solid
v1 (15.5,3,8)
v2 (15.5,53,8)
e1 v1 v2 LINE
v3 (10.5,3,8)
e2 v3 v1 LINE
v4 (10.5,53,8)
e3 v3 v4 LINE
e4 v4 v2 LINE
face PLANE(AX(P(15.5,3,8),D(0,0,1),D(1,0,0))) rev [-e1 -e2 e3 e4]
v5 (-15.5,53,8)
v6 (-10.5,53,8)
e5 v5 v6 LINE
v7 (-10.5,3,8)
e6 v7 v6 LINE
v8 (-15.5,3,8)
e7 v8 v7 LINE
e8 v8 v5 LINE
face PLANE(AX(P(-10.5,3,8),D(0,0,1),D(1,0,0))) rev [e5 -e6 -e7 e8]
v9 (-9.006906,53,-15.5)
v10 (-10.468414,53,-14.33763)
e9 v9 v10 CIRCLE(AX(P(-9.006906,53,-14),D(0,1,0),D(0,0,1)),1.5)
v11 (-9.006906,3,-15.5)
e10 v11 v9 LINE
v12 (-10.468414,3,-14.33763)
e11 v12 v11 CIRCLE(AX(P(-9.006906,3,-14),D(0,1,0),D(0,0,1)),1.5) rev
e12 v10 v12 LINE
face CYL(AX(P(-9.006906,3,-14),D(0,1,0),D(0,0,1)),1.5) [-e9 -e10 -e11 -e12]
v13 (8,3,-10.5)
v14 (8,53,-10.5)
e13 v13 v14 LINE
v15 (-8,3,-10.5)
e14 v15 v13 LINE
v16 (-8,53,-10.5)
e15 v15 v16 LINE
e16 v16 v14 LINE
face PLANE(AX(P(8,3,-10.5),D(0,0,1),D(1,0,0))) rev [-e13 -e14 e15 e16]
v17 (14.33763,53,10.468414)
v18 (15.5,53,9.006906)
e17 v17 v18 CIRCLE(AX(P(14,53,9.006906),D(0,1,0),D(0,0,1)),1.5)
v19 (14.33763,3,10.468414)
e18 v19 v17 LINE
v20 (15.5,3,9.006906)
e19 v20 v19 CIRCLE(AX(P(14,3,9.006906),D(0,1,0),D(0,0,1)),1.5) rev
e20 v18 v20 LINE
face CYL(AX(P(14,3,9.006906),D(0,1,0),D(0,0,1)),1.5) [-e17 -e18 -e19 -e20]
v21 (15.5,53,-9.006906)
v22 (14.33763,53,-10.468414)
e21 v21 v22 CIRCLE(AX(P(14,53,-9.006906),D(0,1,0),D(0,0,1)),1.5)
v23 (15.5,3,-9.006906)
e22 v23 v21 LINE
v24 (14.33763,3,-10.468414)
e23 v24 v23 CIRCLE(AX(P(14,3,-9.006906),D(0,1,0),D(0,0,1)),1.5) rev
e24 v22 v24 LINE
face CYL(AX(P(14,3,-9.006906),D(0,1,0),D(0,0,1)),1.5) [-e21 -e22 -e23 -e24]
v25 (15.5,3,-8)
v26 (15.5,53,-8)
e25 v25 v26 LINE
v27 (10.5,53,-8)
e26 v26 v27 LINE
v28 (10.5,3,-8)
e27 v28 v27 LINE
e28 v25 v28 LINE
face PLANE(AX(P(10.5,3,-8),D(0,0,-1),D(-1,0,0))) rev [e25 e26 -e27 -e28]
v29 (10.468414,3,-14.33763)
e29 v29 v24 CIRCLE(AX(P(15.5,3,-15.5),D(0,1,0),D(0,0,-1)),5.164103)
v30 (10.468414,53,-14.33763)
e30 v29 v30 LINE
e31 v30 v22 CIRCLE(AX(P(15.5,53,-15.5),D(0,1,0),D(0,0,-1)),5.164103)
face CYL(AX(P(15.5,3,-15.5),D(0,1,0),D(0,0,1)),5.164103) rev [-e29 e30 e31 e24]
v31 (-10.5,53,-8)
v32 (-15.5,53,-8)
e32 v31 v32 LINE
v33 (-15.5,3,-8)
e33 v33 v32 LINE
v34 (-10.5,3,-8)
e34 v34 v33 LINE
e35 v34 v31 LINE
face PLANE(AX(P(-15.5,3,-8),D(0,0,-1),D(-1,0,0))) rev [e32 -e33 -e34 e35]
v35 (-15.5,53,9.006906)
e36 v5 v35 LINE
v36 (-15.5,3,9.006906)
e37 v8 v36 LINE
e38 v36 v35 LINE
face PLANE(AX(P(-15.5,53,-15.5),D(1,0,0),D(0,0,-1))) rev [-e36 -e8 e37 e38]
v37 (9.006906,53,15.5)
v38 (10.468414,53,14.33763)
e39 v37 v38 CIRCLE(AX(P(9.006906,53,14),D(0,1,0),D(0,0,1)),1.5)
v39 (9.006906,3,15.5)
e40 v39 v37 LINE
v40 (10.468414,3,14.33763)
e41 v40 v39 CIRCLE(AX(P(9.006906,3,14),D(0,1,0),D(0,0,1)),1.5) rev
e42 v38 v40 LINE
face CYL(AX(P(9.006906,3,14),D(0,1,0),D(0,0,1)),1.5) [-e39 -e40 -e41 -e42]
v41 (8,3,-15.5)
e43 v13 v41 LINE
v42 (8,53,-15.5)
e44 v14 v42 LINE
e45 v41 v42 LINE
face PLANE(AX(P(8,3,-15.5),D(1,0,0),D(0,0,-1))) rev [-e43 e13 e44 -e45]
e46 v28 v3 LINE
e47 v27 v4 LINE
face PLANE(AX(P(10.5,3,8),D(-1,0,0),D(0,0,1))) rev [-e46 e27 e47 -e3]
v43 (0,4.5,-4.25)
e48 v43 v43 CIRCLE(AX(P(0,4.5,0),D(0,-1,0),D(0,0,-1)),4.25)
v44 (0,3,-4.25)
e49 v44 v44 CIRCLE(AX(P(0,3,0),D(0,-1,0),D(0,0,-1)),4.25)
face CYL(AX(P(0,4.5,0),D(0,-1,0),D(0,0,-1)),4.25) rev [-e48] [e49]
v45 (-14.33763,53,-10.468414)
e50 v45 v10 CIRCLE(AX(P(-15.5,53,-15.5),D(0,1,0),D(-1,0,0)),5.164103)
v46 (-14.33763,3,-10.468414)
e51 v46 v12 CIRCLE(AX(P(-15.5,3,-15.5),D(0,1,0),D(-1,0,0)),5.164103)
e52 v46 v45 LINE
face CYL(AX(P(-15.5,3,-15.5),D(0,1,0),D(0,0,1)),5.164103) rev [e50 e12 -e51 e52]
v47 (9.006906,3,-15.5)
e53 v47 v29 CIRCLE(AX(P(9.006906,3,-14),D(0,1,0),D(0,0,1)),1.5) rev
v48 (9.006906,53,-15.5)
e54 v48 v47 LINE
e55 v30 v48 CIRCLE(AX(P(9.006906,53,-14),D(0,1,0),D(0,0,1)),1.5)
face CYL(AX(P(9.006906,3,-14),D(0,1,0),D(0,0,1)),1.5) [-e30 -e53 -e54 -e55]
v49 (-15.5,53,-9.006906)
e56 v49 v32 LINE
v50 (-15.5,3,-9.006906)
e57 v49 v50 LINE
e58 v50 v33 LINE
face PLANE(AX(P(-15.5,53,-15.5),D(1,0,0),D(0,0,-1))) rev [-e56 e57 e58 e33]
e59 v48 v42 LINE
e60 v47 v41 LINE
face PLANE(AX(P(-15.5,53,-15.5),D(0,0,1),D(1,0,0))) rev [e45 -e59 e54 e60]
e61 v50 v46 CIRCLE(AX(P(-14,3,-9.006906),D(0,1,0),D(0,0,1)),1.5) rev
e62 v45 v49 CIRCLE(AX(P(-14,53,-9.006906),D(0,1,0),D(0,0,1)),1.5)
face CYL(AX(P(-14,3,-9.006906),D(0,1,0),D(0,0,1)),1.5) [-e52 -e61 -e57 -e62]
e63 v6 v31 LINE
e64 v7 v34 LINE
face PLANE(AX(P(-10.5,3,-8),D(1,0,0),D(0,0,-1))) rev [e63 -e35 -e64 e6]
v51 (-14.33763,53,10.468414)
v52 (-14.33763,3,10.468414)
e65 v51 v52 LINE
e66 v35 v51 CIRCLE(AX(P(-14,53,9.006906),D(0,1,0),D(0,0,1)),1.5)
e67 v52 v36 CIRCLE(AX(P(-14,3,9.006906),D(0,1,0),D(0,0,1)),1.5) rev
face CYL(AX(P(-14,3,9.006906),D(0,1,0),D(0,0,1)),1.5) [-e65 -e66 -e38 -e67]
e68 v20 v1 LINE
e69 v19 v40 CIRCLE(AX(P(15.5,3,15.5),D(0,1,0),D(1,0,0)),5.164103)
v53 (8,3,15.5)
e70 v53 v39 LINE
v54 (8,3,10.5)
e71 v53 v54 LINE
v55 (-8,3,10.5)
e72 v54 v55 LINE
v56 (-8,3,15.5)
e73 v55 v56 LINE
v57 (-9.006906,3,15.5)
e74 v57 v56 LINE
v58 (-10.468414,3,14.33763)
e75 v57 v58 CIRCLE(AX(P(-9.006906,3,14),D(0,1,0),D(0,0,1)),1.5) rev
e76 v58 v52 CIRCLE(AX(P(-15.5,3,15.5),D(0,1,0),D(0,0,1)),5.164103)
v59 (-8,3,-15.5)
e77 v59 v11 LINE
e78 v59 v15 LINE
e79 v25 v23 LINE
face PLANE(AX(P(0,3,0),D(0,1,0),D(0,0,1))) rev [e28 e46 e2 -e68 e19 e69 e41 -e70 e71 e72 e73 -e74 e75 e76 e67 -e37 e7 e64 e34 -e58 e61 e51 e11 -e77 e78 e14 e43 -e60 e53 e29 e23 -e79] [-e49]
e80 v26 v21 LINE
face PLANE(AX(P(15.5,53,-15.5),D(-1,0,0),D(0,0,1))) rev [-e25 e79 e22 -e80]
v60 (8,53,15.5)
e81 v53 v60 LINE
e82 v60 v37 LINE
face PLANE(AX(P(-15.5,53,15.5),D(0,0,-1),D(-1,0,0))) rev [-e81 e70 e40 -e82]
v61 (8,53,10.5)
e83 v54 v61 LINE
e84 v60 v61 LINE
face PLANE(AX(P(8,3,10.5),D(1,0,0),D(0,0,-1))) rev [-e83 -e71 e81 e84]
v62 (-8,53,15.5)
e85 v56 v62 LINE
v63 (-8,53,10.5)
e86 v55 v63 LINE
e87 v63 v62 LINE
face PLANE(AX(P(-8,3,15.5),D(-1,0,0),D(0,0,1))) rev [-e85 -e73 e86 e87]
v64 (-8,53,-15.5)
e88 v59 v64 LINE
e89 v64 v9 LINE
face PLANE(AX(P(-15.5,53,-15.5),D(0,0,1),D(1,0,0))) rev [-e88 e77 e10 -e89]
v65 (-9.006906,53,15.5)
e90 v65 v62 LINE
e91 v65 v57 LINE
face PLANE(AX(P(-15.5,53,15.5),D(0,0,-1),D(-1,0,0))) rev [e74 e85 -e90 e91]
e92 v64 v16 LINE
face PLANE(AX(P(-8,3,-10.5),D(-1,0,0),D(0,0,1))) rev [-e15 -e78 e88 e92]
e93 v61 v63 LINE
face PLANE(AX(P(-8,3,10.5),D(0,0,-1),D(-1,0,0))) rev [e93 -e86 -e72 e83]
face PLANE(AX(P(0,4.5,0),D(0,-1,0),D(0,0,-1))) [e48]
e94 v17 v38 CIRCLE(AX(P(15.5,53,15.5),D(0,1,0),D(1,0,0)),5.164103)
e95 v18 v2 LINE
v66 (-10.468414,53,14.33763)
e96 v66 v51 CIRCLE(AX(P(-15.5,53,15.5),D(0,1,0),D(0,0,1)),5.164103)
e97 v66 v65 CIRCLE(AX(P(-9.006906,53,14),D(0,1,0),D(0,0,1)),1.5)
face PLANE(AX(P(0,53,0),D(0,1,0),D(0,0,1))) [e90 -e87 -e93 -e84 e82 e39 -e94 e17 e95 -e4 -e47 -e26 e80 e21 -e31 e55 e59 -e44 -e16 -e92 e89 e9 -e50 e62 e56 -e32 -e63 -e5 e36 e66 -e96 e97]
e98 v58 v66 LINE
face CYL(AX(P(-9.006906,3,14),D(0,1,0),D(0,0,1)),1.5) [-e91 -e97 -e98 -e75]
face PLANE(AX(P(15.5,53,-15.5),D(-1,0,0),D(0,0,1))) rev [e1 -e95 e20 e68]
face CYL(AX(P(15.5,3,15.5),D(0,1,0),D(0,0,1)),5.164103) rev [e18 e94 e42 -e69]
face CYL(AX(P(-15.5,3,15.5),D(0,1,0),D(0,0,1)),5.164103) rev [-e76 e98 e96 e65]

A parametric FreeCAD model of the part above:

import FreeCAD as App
import Part
import Sketcher

V = App.Vector
Q = App.Units.Quantity


def edges_at(feature, points):
    """Names of the edges that pass closest to the given points."""
    edges = feature.Shape.Edges
    near = lambda p: min(range(len(edges)), key=lambda i: edges[i].distToShape(Part.Vertex(*p))[0])
    return sorted({f"Edge{near(p) + 1}" for p in points})

doc = App.newDocument("Part")
body = doc.addObject("PartDesign::Body", "Body")

sketch1 = doc.addObject("Sketcher::SketchObject", "Sketch")
body.addObject(sketch1)
sketch1.AttachmentSupport = (doc.XZ_Plane, [""])
sketch1.MapMode = "FlatFace"
sketch1.AttachmentOffset = App.Placement(V(0, 0, -3), App.Rotation())
sketch1.addGeometry([
    Part.LineSegment(V(-16, -16, 0), V(-16, 16, 0)),
    Part.LineSegment(V(-16, 16, 0), V(16, 16, 0)),
    Part.LineSegment(V(16, 16, 0), V(16, -16, 0)),
    Part.LineSegment(V(16, -16, 0), V(-16, -16, 0)),
], False)
sketch1.addConstraint([
    Sketcher.Constraint("Coincident", 0, 2, 1, 1),
    Sketcher.Constraint("Coincident", 1, 2, 2, 1),
    Sketcher.Constraint("Coincident", 2, 2, 3, 1),
    Sketcher.Constraint("Coincident", 3, 2, 0, 1),
    Sketcher.Constraint("Vertical", 0),
    Sketcher.Constraint("Horizontal", 1),
    Sketcher.Constraint("Vertical", 2),
    Sketcher.Constraint("Horizontal", 3),
    Sketcher.Constraint("Symmetric", 0, 2, 2, 2, -1, 1),
    Sketcher.Constraint("Equal", 3, 0),
    Sketcher.Constraint("DistanceX", 1, 1, 1, 2, Q("31 mm")),
])
pad1 = doc.addObject("PartDesign::Pad", "Pad")
body.addObject(pad1)
pad1.Profile = sketch1
pad1.Length = 50
pad1.Reversed = True

sketch2 = doc.addObject("Sketcher::SketchObject", "Sketch001")
body.addObject(sketch2)
sketch2.AttachmentSupport = (doc.XZ_Plane, [""])
sketch2.MapMode = "FlatFace"
sketch2.AttachmentOffset = App.Placement(V(0, 0, -53), App.Rotation())
sketch2.addGeometry([
    Part.LineSegment(V(-16, -8, 0), V(-16, 8, 0)),
    Part.LineSegment(V(-16, 8, 0), V(-10, 8, 0)),
    Part.LineSegment(V(-10, 8, 0), V(-10, -8, 0)),
    Part.LineSegment(V(-10, -8, 0), V(-16, -8, 0)),
], False)
sketch2.addConstraint([
    Sketcher.Constraint("Coincident", 0, 2, 1, 1),
    Sketcher.Constraint("Coincident", 1, 2, 2, 1),
    Sketcher.Constraint("Coincident", 2, 2, 3, 1),
    Sketcher.Constraint("Coincident", 3, 2, 0, 1),
    Sketcher.Constraint("Vertical", 0),
    Sketcher.Constraint("Horizontal", 1),
    Sketcher.Constraint("Vertical", 2),
    Sketcher.Constraint("Horizontal", 3),
    Sketcher.Constraint("DistanceX", 1, 1, 1, 2, Q("5 mm")),
    Sketcher.Constraint("DistanceY", 0, 1, 0, 2, Q("16 mm")),
    Sketcher.Constraint("DistanceY", -1, 1, 0, 2, Q("8 mm")),
    Sketcher.Constraint("DistanceX", 0, 2, -1, 1, Q("15.5 mm")),
])
pocket1 = doc.addObject("PartDesign::Pocket", "Pocket")
body.addObject(pocket1)
pocket1.Profile = sketch2
pocket1.Length = 50
pocket1.Reversed = True
doc.recompute()

polarpattern = doc.addObject("PartDesign::PolarPattern", "PolarPattern")
body.addObject(polarpattern)
polarpattern.Originals = [pocket1]
polarpattern.Axis = (doc.Y_Axis, [""])
polarpattern.Angle = 360
polarpattern.Occurrences = 4
body.Tip = polarpattern

sketch3 = doc.addObject("Sketcher::SketchObject", "Sketch002")
body.addObject(sketch3)
sketch3.AttachmentSupport = (doc.XZ_Plane, [""])
sketch3.MapMode = "FlatFace"
sketch3.AttachmentOffset = App.Placement(V(0, 0, -53), App.Rotation())
sketch3.addGeometry(Part.Circle(V(-16, 16, 0), V(0, 0, 1), 5), False)
sketch3.addConstraint([
    Sketcher.Constraint("DistanceX", 0, 3, -1, 1, Q("15.5 mm")),
    Sketcher.Constraint("DistanceY", -1, 1, 0, 3, Q("15.5 mm")),
    Sketcher.Constraint("Diameter", 0, Q("10.328206 mm")),
])
pocket2 = doc.addObject("PartDesign::Pocket", "Pocket001")
body.addObject(pocket2)
pocket2.Profile = sketch3
pocket2.Length = 50
pocket2.Reversed = True
doc.recompute()

polarpattern2 = doc.addObject("PartDesign::PolarPattern", "PolarPattern001")
body.addObject(polarpattern2)
polarpattern2.Originals = [pocket2]
polarpattern2.Axis = (doc.Y_Axis, [""])
polarpattern2.Angle = 360
polarpattern2.Occurrences = 4
body.Tip = polarpattern2
doc.recompute()

fillet = doc.addObject("PartDesign::Fillet", "Fillet")
body.addObject(fillet)
fillet.Base = (polarpattern2, edges_at(polarpattern2, [
    (15.5, 28, -10.336),
    (10.336, 28, -15.5),
    (-10.336, 28, -15.5),
    (-15.5, 28, -10.336),
    (-15.5, 28, 10.336),
    (-10.336, 28, 15.5),
    (10.336, 28, 15.5),
    (15.5, 28, 10.336),
]))
fillet.Radius = 1.5

sketch4 = doc.addObject("Sketcher::SketchObject", "Sketch003")
body.addObject(sketch4)
sketch4.AttachmentSupport = (doc.XZ_Plane, [""])
sketch4.MapMode = "FlatFace"
sketch4.AttachmentOffset = App.Placement(V(0, 0, -3), App.Rotation())
sketch4.addGeometry(Part.Circle(V(0, 0, 0), V(0, 0, 1), 4.2), False)
sketch4.addConstraint([
    Sketcher.Constraint("Coincident", 0, 3, -1, 1),
    Sketcher.Constraint("Diameter", 0, Q("8.5 mm")),
])
pocket3 = doc.addObject("PartDesign::Pocket", "Pocket002")
body.addObject(pocket3)
pocket3.Profile = sketch4
pocket3.Length = 1.5

doc.recompute()
